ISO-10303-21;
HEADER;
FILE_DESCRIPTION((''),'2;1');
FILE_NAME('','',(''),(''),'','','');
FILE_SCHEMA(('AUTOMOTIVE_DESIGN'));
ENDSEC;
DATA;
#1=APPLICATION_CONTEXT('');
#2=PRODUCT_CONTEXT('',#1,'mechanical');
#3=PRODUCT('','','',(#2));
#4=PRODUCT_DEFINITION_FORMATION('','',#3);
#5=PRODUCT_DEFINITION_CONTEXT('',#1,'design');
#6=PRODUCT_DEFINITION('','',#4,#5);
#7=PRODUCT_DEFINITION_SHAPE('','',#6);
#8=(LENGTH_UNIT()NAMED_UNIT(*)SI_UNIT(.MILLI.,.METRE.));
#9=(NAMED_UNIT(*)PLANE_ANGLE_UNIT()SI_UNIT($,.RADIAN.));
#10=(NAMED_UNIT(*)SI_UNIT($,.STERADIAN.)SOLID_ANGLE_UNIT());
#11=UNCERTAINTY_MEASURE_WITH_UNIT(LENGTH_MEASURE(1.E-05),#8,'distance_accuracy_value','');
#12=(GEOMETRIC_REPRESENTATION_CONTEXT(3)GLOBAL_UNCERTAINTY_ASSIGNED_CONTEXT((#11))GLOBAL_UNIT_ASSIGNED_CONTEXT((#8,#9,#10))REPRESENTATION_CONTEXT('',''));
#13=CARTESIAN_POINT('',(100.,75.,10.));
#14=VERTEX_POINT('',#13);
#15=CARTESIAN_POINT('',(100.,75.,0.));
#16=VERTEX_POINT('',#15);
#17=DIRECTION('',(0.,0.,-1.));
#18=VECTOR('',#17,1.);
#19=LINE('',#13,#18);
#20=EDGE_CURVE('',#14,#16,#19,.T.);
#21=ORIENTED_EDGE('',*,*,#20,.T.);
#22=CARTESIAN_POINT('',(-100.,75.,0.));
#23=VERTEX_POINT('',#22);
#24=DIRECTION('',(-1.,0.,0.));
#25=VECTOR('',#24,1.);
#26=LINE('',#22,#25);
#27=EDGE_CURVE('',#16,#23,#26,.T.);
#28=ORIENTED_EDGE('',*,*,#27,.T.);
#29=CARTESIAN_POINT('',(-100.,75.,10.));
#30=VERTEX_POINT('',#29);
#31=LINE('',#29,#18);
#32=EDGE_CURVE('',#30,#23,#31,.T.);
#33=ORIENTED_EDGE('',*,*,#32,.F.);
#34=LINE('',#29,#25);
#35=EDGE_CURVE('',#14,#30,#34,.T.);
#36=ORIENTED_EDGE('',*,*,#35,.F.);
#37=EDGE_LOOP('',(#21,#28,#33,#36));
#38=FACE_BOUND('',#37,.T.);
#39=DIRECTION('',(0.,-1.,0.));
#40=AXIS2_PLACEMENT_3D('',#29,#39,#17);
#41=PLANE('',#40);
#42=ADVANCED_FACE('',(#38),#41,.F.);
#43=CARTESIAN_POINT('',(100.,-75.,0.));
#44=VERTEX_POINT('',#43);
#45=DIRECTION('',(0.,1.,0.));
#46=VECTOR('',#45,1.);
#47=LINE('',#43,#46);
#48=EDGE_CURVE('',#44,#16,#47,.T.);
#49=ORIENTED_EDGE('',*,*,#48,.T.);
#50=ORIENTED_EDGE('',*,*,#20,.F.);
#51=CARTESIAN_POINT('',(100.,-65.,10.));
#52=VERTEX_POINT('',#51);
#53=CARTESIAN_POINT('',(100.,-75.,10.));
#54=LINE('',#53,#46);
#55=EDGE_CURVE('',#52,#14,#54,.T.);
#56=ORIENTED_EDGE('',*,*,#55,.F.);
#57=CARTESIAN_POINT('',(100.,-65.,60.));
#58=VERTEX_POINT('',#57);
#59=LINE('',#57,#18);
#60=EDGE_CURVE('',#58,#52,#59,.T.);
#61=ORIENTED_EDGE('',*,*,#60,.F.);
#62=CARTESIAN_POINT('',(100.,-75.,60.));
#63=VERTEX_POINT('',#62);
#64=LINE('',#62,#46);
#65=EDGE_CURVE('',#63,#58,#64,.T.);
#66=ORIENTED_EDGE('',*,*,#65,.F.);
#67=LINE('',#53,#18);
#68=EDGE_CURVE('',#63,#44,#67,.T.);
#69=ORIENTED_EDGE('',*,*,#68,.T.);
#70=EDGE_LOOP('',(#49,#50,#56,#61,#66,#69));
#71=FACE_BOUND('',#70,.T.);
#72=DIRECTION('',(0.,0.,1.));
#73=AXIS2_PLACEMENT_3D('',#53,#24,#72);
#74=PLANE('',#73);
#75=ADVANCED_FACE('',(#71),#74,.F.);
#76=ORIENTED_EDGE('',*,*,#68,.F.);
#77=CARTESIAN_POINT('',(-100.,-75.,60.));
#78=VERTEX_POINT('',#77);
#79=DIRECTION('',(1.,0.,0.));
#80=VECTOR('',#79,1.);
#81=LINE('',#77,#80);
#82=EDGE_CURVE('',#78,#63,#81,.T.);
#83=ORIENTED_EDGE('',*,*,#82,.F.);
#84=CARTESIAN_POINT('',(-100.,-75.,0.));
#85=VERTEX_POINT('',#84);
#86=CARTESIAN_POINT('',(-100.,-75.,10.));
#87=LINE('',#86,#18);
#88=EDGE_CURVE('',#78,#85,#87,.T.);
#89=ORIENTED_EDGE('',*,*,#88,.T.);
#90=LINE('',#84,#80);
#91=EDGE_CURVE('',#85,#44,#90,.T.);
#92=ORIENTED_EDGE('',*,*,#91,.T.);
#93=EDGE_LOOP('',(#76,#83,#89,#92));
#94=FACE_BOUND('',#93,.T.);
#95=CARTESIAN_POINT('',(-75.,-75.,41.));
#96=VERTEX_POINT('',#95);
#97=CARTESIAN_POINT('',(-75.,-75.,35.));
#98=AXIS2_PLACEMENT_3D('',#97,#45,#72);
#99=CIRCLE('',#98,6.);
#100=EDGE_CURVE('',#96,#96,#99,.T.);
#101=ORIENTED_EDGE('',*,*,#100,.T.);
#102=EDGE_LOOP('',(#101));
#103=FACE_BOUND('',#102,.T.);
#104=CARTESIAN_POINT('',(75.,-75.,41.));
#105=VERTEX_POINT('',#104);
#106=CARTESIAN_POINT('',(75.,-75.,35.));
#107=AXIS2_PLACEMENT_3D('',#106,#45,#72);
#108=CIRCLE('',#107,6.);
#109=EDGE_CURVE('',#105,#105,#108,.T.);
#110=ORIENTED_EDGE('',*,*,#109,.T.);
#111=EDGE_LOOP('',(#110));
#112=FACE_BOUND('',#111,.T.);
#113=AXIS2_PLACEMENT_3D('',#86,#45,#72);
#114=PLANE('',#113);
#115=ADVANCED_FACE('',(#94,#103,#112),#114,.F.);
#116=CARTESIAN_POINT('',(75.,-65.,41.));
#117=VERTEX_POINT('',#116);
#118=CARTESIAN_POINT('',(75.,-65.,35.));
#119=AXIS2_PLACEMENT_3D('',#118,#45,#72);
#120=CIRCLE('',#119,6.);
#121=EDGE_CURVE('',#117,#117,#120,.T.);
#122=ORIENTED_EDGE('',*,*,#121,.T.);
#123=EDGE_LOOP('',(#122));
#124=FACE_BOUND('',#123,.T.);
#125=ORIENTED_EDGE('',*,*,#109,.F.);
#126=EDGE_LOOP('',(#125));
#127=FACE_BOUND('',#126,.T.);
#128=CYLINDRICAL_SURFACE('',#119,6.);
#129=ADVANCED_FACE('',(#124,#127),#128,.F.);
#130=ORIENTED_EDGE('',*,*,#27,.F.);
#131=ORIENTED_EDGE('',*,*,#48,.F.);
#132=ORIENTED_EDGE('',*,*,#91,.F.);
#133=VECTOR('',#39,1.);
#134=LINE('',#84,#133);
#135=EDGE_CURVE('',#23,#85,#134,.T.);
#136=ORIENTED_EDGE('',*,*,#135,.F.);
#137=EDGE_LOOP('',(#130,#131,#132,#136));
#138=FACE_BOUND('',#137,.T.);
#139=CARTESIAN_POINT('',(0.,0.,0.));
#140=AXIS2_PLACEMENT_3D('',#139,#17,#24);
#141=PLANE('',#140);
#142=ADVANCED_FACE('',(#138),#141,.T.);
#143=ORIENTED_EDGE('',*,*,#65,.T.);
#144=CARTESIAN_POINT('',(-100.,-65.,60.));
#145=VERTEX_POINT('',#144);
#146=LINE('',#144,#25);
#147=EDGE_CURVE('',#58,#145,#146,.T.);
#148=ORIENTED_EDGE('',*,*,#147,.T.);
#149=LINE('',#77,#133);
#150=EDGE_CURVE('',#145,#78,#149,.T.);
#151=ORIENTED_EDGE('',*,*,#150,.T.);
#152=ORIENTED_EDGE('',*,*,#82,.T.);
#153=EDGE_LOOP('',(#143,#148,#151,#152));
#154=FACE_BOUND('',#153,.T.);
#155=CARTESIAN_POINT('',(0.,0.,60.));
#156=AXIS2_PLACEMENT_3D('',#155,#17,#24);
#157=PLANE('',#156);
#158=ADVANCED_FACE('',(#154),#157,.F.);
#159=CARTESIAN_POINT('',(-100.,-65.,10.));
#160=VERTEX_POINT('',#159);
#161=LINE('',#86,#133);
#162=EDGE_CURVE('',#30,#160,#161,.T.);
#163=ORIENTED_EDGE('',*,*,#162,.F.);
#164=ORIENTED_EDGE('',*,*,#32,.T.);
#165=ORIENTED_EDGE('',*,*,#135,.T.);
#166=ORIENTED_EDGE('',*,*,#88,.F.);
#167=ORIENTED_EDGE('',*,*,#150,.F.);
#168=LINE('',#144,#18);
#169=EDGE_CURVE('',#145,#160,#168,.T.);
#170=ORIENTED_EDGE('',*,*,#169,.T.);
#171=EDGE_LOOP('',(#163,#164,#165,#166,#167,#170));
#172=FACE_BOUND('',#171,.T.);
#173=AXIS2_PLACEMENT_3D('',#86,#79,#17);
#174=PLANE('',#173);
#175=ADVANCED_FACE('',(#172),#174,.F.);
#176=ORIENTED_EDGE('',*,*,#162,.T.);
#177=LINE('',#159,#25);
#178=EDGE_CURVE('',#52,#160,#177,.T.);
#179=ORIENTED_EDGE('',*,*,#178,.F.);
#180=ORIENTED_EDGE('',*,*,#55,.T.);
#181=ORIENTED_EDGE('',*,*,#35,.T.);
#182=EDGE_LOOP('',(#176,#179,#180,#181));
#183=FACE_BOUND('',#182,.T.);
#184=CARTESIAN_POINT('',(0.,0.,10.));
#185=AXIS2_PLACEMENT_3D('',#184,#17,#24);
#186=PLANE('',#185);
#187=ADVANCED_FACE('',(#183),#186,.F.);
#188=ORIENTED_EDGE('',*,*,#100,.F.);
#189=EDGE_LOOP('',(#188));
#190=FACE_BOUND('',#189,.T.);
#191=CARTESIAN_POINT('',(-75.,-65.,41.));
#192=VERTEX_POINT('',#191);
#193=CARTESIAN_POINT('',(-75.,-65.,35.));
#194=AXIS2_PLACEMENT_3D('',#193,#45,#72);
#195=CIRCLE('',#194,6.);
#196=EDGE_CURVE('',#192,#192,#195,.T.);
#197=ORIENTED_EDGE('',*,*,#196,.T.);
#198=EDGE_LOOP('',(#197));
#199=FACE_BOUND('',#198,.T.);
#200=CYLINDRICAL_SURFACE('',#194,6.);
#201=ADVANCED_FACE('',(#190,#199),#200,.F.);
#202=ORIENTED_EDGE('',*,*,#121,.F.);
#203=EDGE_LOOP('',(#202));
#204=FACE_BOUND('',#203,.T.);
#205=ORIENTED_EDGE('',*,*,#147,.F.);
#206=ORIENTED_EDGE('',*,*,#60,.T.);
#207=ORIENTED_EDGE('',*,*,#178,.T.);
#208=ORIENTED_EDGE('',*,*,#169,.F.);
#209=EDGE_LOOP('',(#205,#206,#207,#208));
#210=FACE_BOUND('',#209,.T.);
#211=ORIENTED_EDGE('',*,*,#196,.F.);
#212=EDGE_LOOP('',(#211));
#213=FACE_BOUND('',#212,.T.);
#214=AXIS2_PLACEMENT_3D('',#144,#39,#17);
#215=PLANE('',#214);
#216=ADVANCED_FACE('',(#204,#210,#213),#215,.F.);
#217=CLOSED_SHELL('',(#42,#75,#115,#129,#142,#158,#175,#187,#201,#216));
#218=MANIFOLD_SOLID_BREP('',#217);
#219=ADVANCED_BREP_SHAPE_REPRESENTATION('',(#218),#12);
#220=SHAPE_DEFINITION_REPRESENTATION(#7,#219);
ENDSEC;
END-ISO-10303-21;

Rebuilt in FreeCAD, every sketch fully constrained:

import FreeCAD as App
import Part
import Sketcher
from FreeCAD import Vector
Q = App.Units.Quantity

doc = App.newDocument("Part")
params = doc.addObject("Spreadsheet::Sheet", "Params")
for row, (alias, value) in enumerate([
    ("sketch1_width", "200 mm"),
    ("sketch1_height", "150 mm"),
    ("pad1_length", "10 mm"),
    ("sketch2_width", "200 mm"),
    ("sketch2_height", "10 mm"),
    ("pad2_length", "50 mm"),
    ("sketch3_diameter", "12 mm"),
    ("hole_diameter", "12 mm"),
    ("linearpattern_pitch", "150 mm"),
], start=1):
    params.set(f"A{row}", alias)
    params.set(f"B{row}", "=" + value)
    params.setAlias(f"B{row}", alias)

body = doc.addObject("PartDesign::Body", "Body")

sketch1 = body.newObject("Sketcher::SketchObject", "Sketch")
sketch1.AttachmentSupport = (doc.getObject("XY_Plane"), [""])
sketch1.MapMode = "FlatFace"
sketch1.addGeometry([
    Part.LineSegment(Vector(-100, 75, 0), Vector(-100, -75, 0)),
    Part.LineSegment(Vector(-100, -75, 0), Vector(100, -75, 0)),
    Part.LineSegment(Vector(100, -75, 0), Vector(100, 75, 0)),
    Part.LineSegment(Vector(100, 75, 0), Vector(-100, 75, 0)),
], False)
sketch1.addConstraint([
    Sketcher.Constraint("Coincident", 0, 2, 1, 1),
    Sketcher.Constraint("Coincident", 1, 2, 2, 1),
    Sketcher.Constraint("Coincident", 2, 2, 3, 1),
    Sketcher.Constraint("Coincident", 3, 2, 0, 1),
    Sketcher.Constraint("Vertical", 0),
    Sketcher.Constraint("Horizontal", 1),
    Sketcher.Constraint("Vertical", 2),
    Sketcher.Constraint("Horizontal", 3),
    Sketcher.Constraint("Symmetric", 0, 2, 2, 2, -1, 1),
    Sketcher.Constraint("DistanceX", 1, 1, 1, 2, Q("200 mm")),
    Sketcher.Constraint("DistanceY", 0, 2, 0, 1, Q("150 mm")),
])
sketch1.setExpression("Constraints[9]", "Params.sketch1_width")
sketch1.setExpression("Constraints[10]", "Params.sketch1_height")
pad1 = body.newObject("PartDesign::Pad", "Pad")
pad1.Profile = sketch1
pad1.setExpression("Length", "Params.pad1_length")

sketch2 = body.newObject("Sketcher::SketchObject", "Sketch001")
sketch2.AttachmentSupport = (doc.getObject("XY_Plane"), [""])
sketch2.MapMode = "FlatFace"
sketch2.AttachmentOffset = App.Placement(Vector(0, 0, 10), App.Rotation())
sketch2.addGeometry([
    Part.LineSegment(Vector(-100, -65, 0), Vector(-100, -75, 0)),
    Part.LineSegment(Vector(-100, -75, 0), Vector(100, -75, 0)),
    Part.LineSegment(Vector(100, -75, 0), Vector(100, -65, 0)),
    Part.LineSegment(Vector(100, -65, 0), Vector(-100, -65, 0)),
], False)
sketch2.addConstraint([
    Sketcher.Constraint("Coincident", 0, 2, 1, 1),
    Sketcher.Constraint("Coincident", 1, 2, 2, 1),
    Sketcher.Constraint("Coincident", 2, 2, 3, 1),
    Sketcher.Constraint("Coincident", 3, 2, 0, 1),
    Sketcher.Constraint("Vertical", 0),
    Sketcher.Constraint("Horizontal", 1),
    Sketcher.Constraint("Vertical", 2),
    Sketcher.Constraint("Horizontal", 3),
    Sketcher.Constraint("DistanceX", 1, 1, 1, 2, Q("200 mm")),
    Sketcher.Constraint("DistanceY", 0, 2, 0, 1, Q("10 mm")),
    Sketcher.Constraint("DistanceX", 0, 2, -1, 1, Q("100 mm")),
    Sketcher.Constraint("DistanceY", 0, 2, -1, 1, Q("75 mm")),
])
sketch2.setExpression("Constraints[8]", "Params.sketch2_width")
sketch2.setExpression("Constraints[9]", "Params.sketch2_height")
pad2 = body.newObject("PartDesign::Pad", "Pad001")
pad2.Profile = sketch2
pad2.setExpression("Length", "Params.pad2_length")

sketch3 = body.newObject("Sketcher::SketchObject", "Sketch002")
sketch3.AttachmentSupport = (doc.getObject("XZ_Plane"), [""])
sketch3.MapMode = "FlatFace"
sketch3.AttachmentOffset = App.Placement(Vector(0, 0, 65), App.Rotation())
sketch3.addGeometry(Part.Circle(Vector(-75, 35, 0), Vector(0, 0, 1), 6), False)
sketch3.addConstraint([
    Sketcher.Constraint("Diameter", 0, Q("12 mm")),
    Sketcher.Constraint("DistanceX", 0, 3, -1, 1, Q("75 mm")),
    Sketcher.Constraint("DistanceY", -1, 1, 0, 3, Q("35 mm")),
])
sketch3.setExpression("Constraints[0]", "Params.sketch3_diameter")
doc.recompute()
hole = body.newObject("PartDesign::Hole", "Hole")
hole.Profile = sketch3
hole.ThreadType = "None"
hole.setExpression("Diameter", "Params.hole_diameter")
hole.DepthType = "ThroughAll"
hole.Reversed = True
doc.recompute()

linearpattern = body.newObject("PartDesign::LinearPattern", "LinearPattern")
linearpattern.Originals = [hole]
linearpattern.Direction = (doc.getObject("X_Axis"), [""])
linearpattern.Mode = "offset"
linearpattern.setExpression("Offset", "Params.linearpattern_pitch")
linearpattern.Occurrences = 2
body.Tip = linearpattern

doc.recompute()
